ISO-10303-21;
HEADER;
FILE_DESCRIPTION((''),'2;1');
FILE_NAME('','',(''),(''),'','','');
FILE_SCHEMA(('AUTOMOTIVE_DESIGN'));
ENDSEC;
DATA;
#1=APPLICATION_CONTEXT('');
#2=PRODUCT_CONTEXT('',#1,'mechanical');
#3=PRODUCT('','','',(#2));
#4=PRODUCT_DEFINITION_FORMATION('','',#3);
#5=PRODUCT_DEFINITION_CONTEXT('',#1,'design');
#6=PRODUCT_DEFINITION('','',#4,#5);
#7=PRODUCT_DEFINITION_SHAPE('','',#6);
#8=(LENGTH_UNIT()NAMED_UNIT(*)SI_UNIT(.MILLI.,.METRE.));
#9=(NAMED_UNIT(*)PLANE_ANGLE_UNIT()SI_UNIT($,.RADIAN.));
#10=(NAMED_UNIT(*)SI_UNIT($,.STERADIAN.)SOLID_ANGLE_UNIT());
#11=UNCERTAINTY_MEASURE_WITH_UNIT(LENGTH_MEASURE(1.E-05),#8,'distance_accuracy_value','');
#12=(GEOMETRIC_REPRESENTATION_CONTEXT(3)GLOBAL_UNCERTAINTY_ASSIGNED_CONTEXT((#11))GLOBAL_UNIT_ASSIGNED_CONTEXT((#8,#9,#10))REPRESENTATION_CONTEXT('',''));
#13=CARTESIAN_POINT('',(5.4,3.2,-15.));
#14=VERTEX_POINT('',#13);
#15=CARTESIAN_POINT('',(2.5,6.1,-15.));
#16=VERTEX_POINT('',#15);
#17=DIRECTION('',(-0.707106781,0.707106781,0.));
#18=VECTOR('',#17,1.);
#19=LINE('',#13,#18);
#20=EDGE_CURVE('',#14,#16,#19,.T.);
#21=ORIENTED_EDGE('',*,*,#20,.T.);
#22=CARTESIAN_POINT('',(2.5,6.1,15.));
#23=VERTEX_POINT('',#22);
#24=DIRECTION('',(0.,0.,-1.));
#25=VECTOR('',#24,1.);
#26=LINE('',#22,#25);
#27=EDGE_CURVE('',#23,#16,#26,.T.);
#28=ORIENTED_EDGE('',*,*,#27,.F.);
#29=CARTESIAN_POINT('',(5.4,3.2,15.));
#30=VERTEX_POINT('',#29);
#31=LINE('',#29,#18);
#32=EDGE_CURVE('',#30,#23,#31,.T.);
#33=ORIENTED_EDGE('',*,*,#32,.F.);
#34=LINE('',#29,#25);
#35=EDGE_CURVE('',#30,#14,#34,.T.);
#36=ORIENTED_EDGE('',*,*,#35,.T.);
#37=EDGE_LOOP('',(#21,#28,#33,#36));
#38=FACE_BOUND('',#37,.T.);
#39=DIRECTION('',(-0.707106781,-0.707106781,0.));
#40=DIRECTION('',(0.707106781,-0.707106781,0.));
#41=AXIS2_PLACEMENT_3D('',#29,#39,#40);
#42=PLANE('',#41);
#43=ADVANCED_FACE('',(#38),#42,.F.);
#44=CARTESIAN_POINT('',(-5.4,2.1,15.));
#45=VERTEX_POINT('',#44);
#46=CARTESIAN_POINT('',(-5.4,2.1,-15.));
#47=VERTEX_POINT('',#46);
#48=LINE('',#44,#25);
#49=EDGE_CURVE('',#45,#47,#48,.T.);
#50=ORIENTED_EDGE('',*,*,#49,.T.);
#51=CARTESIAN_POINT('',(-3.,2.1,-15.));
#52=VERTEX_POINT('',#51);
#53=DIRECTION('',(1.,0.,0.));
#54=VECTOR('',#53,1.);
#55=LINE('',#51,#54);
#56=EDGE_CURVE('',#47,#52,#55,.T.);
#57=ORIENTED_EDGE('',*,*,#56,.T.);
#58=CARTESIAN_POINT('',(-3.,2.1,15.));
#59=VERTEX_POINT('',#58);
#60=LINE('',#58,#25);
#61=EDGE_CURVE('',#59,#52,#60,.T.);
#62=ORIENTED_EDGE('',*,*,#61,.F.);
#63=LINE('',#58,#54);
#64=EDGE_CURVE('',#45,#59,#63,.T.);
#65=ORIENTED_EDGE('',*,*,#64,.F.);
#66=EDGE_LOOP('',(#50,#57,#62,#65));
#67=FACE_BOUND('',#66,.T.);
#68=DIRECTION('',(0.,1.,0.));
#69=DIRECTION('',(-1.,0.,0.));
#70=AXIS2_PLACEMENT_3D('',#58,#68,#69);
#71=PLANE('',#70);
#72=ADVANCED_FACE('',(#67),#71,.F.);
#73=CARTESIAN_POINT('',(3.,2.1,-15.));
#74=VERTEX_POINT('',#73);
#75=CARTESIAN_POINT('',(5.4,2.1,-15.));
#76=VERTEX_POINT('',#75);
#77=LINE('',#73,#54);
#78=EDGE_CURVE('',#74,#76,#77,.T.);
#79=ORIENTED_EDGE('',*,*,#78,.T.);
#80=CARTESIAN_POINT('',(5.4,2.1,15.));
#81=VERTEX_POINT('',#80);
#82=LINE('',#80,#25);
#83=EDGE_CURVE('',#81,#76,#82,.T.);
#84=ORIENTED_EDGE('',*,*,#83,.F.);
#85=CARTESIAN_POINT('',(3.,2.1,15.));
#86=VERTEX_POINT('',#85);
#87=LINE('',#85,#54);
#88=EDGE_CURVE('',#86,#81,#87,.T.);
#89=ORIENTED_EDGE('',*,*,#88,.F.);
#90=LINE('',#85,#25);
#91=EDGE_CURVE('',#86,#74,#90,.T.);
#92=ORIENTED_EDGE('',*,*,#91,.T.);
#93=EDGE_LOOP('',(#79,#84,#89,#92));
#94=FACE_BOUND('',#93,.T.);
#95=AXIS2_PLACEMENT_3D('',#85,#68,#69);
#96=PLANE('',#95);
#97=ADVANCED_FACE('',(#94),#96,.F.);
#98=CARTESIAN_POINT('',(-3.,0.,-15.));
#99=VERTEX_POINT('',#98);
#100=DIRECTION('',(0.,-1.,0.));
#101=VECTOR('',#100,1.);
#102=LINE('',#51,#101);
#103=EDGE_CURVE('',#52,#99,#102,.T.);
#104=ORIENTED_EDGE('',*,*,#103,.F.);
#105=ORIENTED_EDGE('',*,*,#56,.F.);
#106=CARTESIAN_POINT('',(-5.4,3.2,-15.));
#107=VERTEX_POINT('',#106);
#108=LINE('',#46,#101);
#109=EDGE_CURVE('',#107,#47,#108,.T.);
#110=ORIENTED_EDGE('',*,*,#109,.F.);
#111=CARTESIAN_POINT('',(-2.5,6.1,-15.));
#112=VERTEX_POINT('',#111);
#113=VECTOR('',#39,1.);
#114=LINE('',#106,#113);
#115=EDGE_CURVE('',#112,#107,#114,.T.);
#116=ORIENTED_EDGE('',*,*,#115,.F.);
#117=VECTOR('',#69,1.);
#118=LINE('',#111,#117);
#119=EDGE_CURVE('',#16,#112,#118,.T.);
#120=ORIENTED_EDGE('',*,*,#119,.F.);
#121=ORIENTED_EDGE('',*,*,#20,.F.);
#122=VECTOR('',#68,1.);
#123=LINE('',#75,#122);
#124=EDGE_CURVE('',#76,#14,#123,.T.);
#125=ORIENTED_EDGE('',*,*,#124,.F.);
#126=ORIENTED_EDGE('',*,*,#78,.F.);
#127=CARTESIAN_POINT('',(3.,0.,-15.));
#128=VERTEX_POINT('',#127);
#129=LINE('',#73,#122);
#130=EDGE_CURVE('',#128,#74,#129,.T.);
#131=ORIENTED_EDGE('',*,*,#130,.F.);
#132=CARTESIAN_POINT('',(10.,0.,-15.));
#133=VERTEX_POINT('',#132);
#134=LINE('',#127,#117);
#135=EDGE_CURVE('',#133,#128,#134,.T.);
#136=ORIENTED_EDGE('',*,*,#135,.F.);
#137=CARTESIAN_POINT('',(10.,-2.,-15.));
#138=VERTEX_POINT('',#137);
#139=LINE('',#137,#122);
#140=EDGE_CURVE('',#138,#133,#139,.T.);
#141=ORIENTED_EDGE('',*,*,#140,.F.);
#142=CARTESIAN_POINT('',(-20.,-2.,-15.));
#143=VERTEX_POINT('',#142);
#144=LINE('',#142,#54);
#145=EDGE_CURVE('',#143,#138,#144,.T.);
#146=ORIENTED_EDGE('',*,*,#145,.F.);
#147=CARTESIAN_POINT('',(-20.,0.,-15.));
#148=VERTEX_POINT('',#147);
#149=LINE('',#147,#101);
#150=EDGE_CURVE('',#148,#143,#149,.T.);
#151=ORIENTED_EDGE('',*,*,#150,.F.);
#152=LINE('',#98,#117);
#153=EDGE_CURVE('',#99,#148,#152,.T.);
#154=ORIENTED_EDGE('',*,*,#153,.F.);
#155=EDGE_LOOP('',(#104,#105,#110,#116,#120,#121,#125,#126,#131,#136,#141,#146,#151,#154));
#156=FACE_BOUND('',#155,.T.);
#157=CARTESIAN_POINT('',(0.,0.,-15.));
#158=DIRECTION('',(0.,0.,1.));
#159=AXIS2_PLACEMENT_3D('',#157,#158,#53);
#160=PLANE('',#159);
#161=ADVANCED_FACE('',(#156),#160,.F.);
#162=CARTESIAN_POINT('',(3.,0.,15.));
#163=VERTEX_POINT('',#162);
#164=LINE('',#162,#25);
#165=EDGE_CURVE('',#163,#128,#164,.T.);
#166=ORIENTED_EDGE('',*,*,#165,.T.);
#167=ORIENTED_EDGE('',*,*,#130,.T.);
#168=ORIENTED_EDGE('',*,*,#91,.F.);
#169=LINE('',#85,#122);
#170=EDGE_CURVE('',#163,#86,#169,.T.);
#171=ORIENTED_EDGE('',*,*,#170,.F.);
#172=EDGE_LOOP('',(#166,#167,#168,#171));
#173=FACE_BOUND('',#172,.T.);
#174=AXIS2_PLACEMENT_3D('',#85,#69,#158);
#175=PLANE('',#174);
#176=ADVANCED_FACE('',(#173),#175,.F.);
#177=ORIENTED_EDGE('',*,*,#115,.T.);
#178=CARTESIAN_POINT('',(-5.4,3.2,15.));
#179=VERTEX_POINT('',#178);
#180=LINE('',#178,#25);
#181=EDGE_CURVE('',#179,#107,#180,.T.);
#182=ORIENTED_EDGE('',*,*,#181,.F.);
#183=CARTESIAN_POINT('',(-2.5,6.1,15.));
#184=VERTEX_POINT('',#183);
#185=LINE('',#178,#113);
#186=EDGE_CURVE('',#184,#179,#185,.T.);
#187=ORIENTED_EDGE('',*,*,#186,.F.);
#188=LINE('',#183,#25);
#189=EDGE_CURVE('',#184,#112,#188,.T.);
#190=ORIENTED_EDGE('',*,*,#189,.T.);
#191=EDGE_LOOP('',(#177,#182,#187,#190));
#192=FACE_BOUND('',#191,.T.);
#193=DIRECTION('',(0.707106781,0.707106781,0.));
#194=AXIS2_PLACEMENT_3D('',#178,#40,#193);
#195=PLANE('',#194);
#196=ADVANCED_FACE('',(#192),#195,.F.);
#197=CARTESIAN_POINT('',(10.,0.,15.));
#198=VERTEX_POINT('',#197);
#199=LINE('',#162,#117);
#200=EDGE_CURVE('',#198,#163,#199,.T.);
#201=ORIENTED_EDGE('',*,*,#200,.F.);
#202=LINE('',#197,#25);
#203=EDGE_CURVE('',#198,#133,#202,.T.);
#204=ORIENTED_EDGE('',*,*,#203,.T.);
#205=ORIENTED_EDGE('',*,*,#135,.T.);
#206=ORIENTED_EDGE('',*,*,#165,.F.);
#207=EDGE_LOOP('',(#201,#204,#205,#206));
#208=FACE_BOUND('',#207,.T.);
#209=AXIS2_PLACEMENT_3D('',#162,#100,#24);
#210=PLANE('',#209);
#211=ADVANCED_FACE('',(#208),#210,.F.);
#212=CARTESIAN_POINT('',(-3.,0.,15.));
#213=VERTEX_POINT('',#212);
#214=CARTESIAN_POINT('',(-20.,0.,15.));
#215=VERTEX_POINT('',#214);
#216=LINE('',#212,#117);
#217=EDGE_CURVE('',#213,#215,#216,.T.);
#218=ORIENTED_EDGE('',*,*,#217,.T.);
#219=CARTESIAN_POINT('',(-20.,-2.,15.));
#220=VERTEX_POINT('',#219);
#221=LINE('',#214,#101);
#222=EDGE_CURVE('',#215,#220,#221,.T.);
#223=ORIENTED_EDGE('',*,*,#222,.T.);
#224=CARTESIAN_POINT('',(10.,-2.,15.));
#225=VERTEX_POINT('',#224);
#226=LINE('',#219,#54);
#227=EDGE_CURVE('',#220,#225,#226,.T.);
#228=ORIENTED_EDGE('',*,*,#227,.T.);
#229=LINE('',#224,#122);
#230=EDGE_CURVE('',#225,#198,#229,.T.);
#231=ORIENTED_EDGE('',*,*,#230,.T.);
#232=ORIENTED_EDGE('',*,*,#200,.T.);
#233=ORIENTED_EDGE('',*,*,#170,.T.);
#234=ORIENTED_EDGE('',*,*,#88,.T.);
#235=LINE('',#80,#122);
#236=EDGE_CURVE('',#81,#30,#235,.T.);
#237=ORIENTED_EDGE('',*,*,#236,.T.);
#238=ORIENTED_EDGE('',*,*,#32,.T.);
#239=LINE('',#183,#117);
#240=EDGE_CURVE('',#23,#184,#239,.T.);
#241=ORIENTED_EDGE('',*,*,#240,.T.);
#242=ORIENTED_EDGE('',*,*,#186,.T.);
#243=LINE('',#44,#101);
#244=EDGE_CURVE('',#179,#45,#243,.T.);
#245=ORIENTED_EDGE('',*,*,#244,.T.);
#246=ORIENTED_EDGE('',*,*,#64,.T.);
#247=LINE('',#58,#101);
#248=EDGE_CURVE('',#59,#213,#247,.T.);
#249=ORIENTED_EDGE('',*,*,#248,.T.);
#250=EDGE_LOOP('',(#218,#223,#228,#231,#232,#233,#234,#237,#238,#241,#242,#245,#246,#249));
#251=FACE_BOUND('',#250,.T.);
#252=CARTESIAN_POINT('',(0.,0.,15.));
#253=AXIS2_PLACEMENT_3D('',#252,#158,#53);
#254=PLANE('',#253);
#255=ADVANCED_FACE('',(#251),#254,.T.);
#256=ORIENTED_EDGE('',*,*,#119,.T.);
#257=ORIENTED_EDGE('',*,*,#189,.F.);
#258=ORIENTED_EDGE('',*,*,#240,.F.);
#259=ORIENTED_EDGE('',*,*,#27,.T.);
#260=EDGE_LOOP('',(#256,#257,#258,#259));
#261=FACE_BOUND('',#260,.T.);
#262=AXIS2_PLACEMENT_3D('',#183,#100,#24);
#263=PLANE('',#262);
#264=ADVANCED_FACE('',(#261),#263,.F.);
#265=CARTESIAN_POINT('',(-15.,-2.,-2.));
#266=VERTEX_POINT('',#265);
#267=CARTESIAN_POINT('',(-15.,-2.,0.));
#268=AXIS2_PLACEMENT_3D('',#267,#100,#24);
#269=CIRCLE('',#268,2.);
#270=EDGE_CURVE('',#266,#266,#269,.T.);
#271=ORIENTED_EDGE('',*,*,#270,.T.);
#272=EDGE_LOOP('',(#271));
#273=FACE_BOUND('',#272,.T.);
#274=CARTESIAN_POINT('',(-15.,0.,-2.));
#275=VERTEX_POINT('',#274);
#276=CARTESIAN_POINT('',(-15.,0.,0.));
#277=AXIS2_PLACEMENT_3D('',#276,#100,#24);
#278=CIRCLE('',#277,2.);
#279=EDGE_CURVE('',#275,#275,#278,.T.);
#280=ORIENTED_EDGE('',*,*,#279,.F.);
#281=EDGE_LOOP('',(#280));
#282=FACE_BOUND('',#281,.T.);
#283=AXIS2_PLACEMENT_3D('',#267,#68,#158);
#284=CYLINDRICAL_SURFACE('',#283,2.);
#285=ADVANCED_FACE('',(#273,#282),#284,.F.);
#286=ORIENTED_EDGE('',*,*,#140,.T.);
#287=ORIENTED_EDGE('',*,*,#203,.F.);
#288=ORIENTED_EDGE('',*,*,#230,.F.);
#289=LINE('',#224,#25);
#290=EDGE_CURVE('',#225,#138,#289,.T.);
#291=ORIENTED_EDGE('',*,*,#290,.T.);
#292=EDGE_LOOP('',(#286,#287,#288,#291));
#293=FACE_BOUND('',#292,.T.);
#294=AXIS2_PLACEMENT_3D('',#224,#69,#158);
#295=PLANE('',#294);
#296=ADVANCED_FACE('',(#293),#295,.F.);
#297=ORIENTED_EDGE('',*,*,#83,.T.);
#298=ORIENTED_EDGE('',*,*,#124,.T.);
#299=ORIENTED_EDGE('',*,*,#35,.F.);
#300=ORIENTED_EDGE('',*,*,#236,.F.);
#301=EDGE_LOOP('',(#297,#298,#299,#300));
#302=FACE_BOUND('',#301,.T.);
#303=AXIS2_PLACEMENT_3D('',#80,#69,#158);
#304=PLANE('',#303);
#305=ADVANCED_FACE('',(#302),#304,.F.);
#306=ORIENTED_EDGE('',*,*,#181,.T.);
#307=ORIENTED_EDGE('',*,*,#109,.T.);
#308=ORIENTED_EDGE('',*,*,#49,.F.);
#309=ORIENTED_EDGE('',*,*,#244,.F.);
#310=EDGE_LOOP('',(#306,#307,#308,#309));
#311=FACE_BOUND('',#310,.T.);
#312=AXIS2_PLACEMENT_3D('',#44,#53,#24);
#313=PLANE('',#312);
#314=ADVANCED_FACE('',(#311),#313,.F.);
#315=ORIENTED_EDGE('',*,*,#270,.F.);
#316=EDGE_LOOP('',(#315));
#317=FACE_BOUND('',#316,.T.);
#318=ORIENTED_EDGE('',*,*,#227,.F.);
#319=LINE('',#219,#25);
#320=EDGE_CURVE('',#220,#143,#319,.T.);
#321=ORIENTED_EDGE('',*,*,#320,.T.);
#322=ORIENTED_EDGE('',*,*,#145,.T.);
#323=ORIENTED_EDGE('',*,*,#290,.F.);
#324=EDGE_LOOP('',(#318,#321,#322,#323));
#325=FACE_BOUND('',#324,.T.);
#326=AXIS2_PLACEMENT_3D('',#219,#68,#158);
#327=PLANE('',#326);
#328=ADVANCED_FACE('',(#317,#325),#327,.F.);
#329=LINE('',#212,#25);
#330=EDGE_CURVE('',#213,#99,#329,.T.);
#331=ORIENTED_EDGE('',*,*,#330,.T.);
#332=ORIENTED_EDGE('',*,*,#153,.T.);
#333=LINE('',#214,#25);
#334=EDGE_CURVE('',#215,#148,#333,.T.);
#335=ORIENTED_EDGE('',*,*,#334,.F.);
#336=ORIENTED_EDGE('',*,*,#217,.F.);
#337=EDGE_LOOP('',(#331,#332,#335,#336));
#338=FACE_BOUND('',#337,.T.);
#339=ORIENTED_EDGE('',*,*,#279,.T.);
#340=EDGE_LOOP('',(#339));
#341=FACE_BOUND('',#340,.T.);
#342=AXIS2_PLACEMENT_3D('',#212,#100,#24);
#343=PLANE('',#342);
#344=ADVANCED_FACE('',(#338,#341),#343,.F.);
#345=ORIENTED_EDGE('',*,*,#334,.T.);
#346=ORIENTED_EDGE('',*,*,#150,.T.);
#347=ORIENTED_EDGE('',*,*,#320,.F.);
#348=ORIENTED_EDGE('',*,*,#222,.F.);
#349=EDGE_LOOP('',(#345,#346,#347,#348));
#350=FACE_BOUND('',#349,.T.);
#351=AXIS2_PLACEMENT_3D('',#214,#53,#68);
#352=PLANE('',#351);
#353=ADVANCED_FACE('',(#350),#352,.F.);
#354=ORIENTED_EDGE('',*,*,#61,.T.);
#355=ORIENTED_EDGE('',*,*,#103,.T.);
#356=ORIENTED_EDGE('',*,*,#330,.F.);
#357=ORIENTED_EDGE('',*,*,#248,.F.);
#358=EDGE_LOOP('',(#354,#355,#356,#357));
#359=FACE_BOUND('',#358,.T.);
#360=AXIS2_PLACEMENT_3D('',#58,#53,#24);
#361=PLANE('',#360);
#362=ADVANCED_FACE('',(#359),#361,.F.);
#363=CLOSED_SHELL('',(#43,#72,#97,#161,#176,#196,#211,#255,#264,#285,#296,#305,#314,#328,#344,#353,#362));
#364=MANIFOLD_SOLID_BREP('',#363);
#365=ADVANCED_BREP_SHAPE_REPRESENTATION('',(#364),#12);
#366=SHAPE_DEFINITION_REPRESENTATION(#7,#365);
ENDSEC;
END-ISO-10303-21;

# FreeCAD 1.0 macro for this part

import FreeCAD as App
import Part
import Sketcher

V = App.Vector


def add_polygon(sketch, points):
    """Adds a closed chain of lines whose ends are joined by coincident constraints."""
    first, n = sketch.GeometryCount, len(points)
    for a, b in zip(points, points[1:] + points[:1]):
        sketch.addGeometry(Part.LineSegment(App.Vector(*a, 0), App.Vector(*b, 0)), False)
    for i in range(n):
        sketch.addConstraint(Sketcher.Constraint("Coincident", first + i, 2, first + (i + 1) % n, 1))

doc = App.newDocument("Part")
body = doc.addObject("PartDesign::Body", "Body")

sketch1 = body.newObject("Sketcher::SketchObject", "Sketch")
sketch1.AttachmentSupport = (doc.getObject("XY_Plane"), [""])
sketch1.MapMode = "FlatFace"
add_polygon(sketch1, [(5.4, 3.2), (2.5, 6.1), (-2.5, 6.1), (-5.4, 3.2), (-5.4, 2.1), (-3, 2.1), (-3, 0), (-20, 0), (-20, -2), (10, -2), (10, 0), (3, 0), (3, 2.1), (5.4, 2.1)])
sketch1.addConstraint([
    Sketcher.Constraint("Horizontal", 1),
    Sketcher.Constraint("Vertical", 3),
    Sketcher.Constraint("Horizontal", 4),
    Sketcher.Constraint("Vertical", 5),
    Sketcher.Constraint("Horizontal", 6),
    Sketcher.Constraint("Vertical", 7),
    Sketcher.Constraint("Horizontal", 8),
    Sketcher.Constraint("Vertical", 9),
    Sketcher.Constraint("Horizontal", 10),
    Sketcher.Constraint("Vertical", 11),
    Sketcher.Constraint("Horizontal", 12),
    Sketcher.Constraint("Vertical", 13),
    Sketcher.Constraint("Symmetric", 5, 2, 10, 2, -1, 1),
    Sketcher.Constraint("Symmetric", 3, 2, 12, 2, -2),
    Sketcher.Constraint("PointOnObject", 5, 2, -1),
    Sketcher.Constraint("Perpendicular", 0, 2),
    Sketcher.Constraint("Horizontal", 2, 2, 13, 2),
    Sketcher.Constraint("Equal", 0, 2),
    Sketcher.Constraint("DistanceX", 1, 2, 1, 1, 5.0),
    Sketcher.Constraint("DistanceX", 6, 2, 6, 1, 17.0),
    Sketcher.Constraint("DistanceX", 8, 1, 8, 2, 30.0),
    Sketcher.Constraint("DistanceX", 10, 2, 10, 1, 7.0),
    Sketcher.Constraint("DistanceY", 7, 2, 7, 1, 2.0),
    Sketcher.Constraint("DistanceX", 4, 1, 4, 2, 2.4),
    Sketcher.Constraint("DistanceY", 3, 2, 3, 1, 1.1),
    Sketcher.Constraint("DistanceY", 5, 2, 5, 1, 2.1),
])
pad1 = body.newObject("PartDesign::Pad", "Pad")
pad1.Profile = sketch1
pad1.Length = 30
pad1.Midplane = True

sketch2 = body.newObject("Sketcher::SketchObject", "Sketch001")
sketch2.AttachmentSupport = (doc.getObject("XZ_Plane"), [""])
sketch2.MapMode = "FlatFace"
sketch2.addGeometry(Part.Circle(V(-15, 0, 0), V(0, 0, 1), 2), False)
sketch2.addConstraint([
    Sketcher.Constraint("PointOnObject", 0, 3, -1),
    Sketcher.Constraint("Diameter", 0, 4.0),
    Sketcher.Constraint("DistanceX", 0, 3, -1, 1, 15.0),
])
pocket1 = body.newObject("PartDesign::Pocket", "Pocket")
pocket1.Profile = sketch2
pocket1.Type = "ThroughAll"
pocket1.Reversed = True

doc.recompute()
